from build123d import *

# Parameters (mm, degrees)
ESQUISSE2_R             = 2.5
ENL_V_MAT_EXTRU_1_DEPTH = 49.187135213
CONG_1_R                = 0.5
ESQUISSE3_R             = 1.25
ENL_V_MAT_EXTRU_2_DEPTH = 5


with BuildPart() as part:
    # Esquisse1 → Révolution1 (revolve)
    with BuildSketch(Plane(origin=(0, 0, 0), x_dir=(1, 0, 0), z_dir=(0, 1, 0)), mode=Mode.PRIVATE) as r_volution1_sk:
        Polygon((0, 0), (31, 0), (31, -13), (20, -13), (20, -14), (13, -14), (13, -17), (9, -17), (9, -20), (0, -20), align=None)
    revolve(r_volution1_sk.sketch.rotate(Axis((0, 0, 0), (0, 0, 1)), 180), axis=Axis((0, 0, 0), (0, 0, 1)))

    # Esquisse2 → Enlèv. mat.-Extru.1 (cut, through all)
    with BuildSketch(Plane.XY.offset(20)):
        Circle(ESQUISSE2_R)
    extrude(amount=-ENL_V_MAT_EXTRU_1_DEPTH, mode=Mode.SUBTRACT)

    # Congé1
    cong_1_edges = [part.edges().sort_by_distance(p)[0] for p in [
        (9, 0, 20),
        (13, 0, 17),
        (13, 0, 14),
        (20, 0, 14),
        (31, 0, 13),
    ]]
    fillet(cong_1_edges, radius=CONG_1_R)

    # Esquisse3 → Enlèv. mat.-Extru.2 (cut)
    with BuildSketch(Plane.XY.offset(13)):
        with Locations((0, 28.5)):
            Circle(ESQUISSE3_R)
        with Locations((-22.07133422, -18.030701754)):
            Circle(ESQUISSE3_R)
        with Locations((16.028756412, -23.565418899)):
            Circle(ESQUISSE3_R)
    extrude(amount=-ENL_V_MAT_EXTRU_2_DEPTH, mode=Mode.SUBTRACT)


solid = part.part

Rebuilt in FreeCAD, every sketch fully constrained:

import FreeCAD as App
import Part
import Sketcher
from FreeCAD import Vector


def edges_at(feature, points):
    """Names of the edges that pass closest to the given points."""
    edges = feature.Shape.Edges
    near = lambda p: min(range(len(edges)), key=lambda i: edges[i].distToShape(Part.Vertex(*p))[0])
    return sorted({f"Edge{near(p) + 1}" for p in points})

doc = App.newDocument("Part")
body = doc.addObject("PartDesign::Body", "Body")

sketch1 = body.newObject("Sketcher::SketchObject", "Sketch")
sketch1.AttachmentSupport = (doc.getObject("XZ_Plane"), [""])
sketch1.MapMode = "FlatFace"
sketch1.addGeometry([
    Part.LineSegment(Vector(31, 0, 0), Vector(0, 0, 0)),
    Part.LineSegment(Vector(0, 0, 0), Vector(0, 20, 0)),
    Part.LineSegment(Vector(0, 20, 0), Vector(9, 20, 0)),
    Part.LineSegment(Vector(9, 20, 0), Vector(9, 17, 0)),
    Part.LineSegment(Vector(9, 17, 0), Vector(13, 17, 0)),
    Part.LineSegment(Vector(13, 17, 0), Vector(13, 14, 0)),
    Part.LineSegment(Vector(13, 14, 0), Vector(20, 14, 0)),
    Part.LineSegment(Vector(20, 14, 0), Vector(20, 13, 0)),
    Part.LineSegment(Vector(20, 13, 0), Vector(31, 13, 0)),
    Part.LineSegment(Vector(31, 13, 0), Vector(31, 0, 0)),
], False)
sketch1.addConstraint([
    Sketcher.Constraint("Coincident", 0, 2, 1, 1),
    Sketcher.Constraint("Coincident", 1, 2, 2, 1),
    Sketcher.Constraint("Coincident", 2, 2, 3, 1),
    Sketcher.Constraint("Coincident", 3, 2, 4, 1),
    Sketcher.Constraint("Coincident", 4, 2, 5, 1),
    Sketcher.Constraint("Coincident", 5, 2, 6, 1),
    Sketcher.Constraint("Coincident", 6, 2, 7, 1),
    Sketcher.Constraint("Coincident", 7, 2, 8, 1),
    Sketcher.Constraint("Coincident", 8, 2, 9, 1),
    Sketcher.Constraint("Coincident", 9, 2, 0, 1),
    Sketcher.Constraint("Horizontal", 0),
    Sketcher.Constraint("Vertical", 1),
    Sketcher.Constraint("Horizontal", 2),
    Sketcher.Constraint("Vertical", 3),
    Sketcher.Constraint("Horizontal", 4),
    Sketcher.Constraint("Vertical", 5),
    Sketcher.Constraint("Horizontal", 6),
    Sketcher.Constraint("Vertical", 7),
    Sketcher.Constraint("Horizontal", 8),
    Sketcher.Constraint("Vertical", 9),
    Sketcher.Constraint("Coincident", 0, 2, -1, 1),
    Sketcher.Constraint("Equal", 3, 5),
    Sketcher.Constraint("DistanceX", 0, 2, 0, 1, 31.0),
    Sketcher.Constraint("DistanceX", 2, 1, 2, 2, 9.0),
    Sketcher.Constraint("DistanceX", 4, 1, 4, 2, 4.0),
    Sketcher.Constraint("DistanceX", 6, 1, 6, 2, 7.0),
    Sketcher.Constraint("DistanceY", 1, 1, 1, 2, 20.0),
    Sketcher.Constraint("DistanceY", 3, 2, 3, 1, 3.0),
    Sketcher.Constraint("DistanceY", 7, 2, 7, 1, 1.0),
])
revolution = body.newObject("PartDesign::Revolution", "Revolution")
revolution.Profile = sketch1
revolution.ReferenceAxis = (sketch1, ["V_Axis"])
revolution.Angle = 360

sketch2 = body.newObject("Sketcher::SketchObject", "Sketch001")
sketch2.AttachmentSupport = (doc.getObject("XY_Plane"), [""])
sketch2.MapMode = "FlatFace"
sketch2.AttachmentOffset = App.Placement(Vector(0, 0, 20), App.Rotation())
sketch2.addGeometry(Part.Circle(Vector(0, 0, 0), Vector(0, 0, 1), 2.5), False)
sketch2.addConstraint([
    Sketcher.Constraint("Coincident", 0, 3, -1, 1),
    Sketcher.Constraint("Diameter", 0, 5.0),
])
pocket1 = body.newObject("PartDesign::Pocket", "Pocket")
pocket1.Profile = sketch2
pocket1.Type = "ThroughAll"
doc.recompute()

fillet = body.newObject("PartDesign::Fillet", "Fillet")
fillet.Base = (pocket1, edges_at(pocket1, [
    (9, 0, 20),
    (13, 0, 17),
    (13, 0, 14),
    (20, 0, 14),
    (31, 0, 13),
]))
fillet.Radius = 0.5

sketch3 = body.newObject("Sketcher::SketchObject", "Sketch002")
sketch3.AttachmentSupport = (doc.getObject("XY_Plane"), [""])
sketch3.MapMode = "FlatFace"
sketch3.AttachmentOffset = App.Placement(Vector(0, 0, 13), App.Rotation())
sketch3.addGeometry([
    Part.Circle(Vector(0, 28.5, 0), Vector(0, 0, 1), 1.25),
    Part.Circle(Vector(-22.071334, -18.030702, 0), Vector(0, 0, 1), 1.25),
    Part.Circle(Vector(16.028756, -23.565419, 0), Vector(0, 0, 1), 1.25),
], False)
sketch3.addConstraint([
    Sketcher.Constraint("Equal", 0, 1),
    Sketcher.Constraint("Equal", 1, 2),
    Sketcher.Constraint("PointOnObject", 0, 3, -2),
    Sketcher.Constraint("Diameter", 0, 2.5),
    Sketcher.Constraint("DistanceY", -1, 1, 0, 3, 28.5),
    Sketcher.Constraint("DistanceY", 1, 3, -1, 1, 18.030702),
    Sketcher.Constraint("DistanceY", 2, 3, -1, 1, 23.565419),
    Sketcher.Constraint("DistanceX", 1, 3, 2, 3, 38.100091),
    Sketcher.Constraint("DistanceX", 1, 3, -1, 1, 22.071334),
])
pocket2 = body.newObject("PartDesign::Pocket", "Pocket001")
pocket2.Profile = sketch3
pocket2.Length = 5

doc.recompute()
